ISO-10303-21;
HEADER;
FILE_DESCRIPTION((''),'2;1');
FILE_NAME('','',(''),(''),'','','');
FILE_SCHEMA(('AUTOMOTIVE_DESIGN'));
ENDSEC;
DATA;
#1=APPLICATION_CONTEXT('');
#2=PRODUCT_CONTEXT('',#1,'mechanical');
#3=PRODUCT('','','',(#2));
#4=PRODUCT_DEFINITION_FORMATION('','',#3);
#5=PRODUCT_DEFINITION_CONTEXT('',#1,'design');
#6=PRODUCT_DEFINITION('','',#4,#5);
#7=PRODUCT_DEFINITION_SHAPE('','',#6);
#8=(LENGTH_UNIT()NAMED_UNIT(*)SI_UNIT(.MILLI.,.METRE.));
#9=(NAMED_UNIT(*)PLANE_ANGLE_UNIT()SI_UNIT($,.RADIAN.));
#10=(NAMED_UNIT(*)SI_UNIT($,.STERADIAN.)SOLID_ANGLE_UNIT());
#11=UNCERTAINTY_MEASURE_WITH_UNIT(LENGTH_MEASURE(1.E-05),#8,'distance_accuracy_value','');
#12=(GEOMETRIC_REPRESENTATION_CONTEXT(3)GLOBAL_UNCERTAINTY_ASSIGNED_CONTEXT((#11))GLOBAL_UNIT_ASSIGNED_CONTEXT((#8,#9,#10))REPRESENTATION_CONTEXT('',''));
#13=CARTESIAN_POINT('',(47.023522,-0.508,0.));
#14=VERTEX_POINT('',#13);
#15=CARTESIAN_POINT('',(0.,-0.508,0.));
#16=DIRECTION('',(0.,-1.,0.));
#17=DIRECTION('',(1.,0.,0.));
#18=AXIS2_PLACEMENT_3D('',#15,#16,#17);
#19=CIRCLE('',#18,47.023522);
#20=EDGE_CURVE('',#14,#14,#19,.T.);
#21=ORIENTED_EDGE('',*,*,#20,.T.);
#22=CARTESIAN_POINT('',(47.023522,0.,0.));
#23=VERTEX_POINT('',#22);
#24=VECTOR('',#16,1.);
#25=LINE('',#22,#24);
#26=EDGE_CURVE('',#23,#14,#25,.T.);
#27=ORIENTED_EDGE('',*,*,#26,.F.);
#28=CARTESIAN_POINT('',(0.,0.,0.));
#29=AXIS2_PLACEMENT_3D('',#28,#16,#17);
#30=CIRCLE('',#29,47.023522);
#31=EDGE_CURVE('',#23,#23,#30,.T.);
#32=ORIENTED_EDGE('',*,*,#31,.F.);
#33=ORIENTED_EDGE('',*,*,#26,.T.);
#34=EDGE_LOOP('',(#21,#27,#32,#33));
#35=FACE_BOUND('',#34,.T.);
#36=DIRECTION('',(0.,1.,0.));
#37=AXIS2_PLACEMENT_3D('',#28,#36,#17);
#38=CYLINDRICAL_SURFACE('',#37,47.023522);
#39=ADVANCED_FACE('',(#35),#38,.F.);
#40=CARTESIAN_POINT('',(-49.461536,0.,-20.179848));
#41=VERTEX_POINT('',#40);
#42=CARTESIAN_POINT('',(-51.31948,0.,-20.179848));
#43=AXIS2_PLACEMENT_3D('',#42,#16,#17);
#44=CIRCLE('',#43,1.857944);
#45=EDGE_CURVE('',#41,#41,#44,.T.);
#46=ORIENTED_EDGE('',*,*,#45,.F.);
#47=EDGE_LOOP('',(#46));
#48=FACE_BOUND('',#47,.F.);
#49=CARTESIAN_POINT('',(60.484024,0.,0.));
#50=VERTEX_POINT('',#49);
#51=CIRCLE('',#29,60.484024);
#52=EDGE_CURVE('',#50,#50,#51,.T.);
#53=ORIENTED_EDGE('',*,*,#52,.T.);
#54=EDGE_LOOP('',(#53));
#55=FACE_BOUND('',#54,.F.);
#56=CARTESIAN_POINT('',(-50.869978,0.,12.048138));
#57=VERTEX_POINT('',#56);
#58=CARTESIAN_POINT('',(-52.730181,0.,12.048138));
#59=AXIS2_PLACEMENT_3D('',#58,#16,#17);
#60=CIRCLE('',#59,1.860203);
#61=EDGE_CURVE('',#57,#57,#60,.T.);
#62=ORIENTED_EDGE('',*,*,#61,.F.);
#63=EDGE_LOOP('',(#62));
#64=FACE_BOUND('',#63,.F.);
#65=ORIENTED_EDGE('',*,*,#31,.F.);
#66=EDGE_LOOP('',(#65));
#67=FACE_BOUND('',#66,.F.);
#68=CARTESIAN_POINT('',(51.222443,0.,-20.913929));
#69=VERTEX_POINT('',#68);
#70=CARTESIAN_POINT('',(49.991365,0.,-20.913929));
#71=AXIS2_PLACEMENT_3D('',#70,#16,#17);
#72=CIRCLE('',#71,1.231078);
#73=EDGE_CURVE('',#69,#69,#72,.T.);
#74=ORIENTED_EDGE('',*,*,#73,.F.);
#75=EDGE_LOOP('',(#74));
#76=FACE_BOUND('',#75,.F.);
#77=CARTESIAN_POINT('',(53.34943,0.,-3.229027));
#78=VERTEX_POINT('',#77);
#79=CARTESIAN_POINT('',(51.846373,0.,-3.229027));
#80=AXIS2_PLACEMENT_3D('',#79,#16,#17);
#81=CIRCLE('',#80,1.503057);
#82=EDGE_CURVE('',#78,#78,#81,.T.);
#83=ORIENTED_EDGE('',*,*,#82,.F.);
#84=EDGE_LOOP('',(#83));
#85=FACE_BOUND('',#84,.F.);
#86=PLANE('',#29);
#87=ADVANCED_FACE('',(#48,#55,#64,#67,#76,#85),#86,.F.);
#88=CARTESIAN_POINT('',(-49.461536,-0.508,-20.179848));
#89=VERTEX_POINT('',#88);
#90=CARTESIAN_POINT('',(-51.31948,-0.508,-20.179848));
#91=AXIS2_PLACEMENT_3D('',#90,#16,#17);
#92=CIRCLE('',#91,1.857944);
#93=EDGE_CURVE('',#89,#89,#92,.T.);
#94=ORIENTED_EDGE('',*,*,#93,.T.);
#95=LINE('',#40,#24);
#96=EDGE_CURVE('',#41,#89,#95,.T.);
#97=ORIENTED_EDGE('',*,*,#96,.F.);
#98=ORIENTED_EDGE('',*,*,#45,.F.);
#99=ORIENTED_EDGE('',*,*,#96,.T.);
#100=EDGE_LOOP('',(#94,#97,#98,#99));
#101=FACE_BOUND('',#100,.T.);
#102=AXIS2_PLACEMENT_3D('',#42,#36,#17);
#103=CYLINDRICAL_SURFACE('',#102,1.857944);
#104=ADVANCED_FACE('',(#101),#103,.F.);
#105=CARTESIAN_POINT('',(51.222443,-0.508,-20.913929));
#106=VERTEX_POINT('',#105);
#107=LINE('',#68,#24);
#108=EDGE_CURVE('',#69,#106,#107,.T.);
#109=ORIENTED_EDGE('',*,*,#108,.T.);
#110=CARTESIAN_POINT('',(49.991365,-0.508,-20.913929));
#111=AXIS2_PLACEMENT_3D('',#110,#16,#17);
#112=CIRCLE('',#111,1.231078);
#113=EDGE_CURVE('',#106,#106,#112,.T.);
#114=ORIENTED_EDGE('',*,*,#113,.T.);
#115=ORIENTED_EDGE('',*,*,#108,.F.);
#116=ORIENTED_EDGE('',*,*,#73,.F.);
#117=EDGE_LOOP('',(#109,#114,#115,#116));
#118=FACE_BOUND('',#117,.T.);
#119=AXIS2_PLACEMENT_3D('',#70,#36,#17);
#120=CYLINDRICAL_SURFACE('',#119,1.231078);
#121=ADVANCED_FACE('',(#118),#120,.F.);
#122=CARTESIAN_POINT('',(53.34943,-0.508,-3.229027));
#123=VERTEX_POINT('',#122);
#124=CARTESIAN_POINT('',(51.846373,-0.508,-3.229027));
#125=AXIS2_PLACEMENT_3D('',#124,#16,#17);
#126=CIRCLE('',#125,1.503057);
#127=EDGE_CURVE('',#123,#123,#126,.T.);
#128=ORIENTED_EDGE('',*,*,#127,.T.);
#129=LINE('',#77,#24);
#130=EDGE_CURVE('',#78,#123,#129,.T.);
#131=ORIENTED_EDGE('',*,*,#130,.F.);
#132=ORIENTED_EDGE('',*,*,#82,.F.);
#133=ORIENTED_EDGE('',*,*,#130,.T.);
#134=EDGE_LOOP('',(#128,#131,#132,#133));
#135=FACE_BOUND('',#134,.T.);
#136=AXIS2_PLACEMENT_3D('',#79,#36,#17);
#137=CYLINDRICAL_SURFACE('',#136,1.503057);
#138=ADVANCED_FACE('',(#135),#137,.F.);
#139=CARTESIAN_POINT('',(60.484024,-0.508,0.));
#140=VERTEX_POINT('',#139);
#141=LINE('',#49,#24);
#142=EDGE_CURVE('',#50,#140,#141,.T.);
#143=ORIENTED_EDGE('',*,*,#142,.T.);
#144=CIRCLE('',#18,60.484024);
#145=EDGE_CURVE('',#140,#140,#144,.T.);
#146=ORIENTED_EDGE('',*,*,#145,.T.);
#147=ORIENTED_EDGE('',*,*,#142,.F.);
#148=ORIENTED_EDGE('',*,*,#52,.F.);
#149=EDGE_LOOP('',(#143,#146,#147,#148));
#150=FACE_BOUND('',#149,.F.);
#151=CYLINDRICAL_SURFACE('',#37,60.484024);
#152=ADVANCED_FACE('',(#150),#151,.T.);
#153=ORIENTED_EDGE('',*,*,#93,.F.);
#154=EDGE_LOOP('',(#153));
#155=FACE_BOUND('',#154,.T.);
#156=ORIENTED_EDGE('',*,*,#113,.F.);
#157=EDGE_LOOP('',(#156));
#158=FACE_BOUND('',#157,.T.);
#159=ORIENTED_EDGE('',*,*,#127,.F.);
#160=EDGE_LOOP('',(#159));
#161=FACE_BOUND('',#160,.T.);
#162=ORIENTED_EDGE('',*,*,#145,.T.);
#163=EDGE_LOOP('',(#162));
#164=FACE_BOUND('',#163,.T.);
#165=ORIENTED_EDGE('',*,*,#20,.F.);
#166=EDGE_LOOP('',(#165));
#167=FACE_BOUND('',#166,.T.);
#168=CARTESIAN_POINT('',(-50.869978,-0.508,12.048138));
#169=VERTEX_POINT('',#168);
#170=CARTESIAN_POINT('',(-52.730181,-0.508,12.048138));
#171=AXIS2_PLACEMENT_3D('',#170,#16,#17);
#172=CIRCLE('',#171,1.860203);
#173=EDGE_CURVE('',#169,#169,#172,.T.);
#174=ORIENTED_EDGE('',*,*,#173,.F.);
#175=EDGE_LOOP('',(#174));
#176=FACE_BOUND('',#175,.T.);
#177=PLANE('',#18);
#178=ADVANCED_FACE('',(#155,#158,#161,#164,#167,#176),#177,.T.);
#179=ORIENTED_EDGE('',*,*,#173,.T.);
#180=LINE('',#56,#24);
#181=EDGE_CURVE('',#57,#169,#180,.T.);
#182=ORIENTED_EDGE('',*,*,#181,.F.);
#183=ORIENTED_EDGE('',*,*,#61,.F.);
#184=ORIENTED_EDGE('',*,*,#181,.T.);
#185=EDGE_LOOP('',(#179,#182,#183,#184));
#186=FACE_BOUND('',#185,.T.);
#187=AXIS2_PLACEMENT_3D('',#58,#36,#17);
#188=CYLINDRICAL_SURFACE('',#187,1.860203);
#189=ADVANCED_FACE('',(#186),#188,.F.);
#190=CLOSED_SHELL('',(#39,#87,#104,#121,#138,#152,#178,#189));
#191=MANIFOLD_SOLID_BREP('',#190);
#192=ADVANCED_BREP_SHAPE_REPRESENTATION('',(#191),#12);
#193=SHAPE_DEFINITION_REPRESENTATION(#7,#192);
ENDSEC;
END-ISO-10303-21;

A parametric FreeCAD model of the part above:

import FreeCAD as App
import Part
import Sketcher

V = App.Vector
Q = App.Units.Quantity

doc = App.newDocument("Part")
body = doc.addObject("PartDesign::Body", "Body")

sketch1 = doc.addObject("Sketcher::SketchObject", "Sketch")
body.addObject(sketch1)
sketch1.AttachmentSupport = (doc.XZ_Plane, [""])
sketch1.MapMode = "FlatFace"
sketch1.addGeometry(Part.Circle(V(0, 0, 0), V(0, 0, 1), 60.5), False)
sketch1.addGeometry(Part.Circle(V(-51.3, -20.2, 0), V(0, 0, 1), 1.9), False)
sketch1.addGeometry(Part.Circle(V(50, -20.9, 0), V(0, 0, 1), 1.2), False)
sketch1.addGeometry(Part.Circle(V(51.8, -3.2, 0), V(0, 0, 1), 1.5), False)
sketch1.addGeometry(Part.Circle(V(-52.7, 12, 0), V(0, 0, 1), 1.9), False)
sketch1.addGeometry(Part.Circle(V(0, 0, 0), V(0, 0, 1), 47), False)
sketch1.addConstraint(Sketcher.Constraint("Coincident", 0, 3, -1, 1))
sketch1.addConstraint(Sketcher.Constraint("Coincident", 5, 3, -1, 1))
sketch1.addConstraint(Sketcher.Constraint("Diameter", 1, 3.715888))
sketch1.addConstraint(Sketcher.Constraint("Diameter", 0, 120.968048))
sketch1.addConstraint(Sketcher.Constraint("Diameter", 2, 2.462156))
sketch1.addConstraint(Sketcher.Constraint("Diameter", 3, 3.006114))
sketch1.addConstraint(Sketcher.Constraint("Diameter", 4, 3.720406))
sketch1.addConstraint(Sketcher.Constraint("Diameter", 5, 94.047044))
sketch1.addConstraint(Sketcher.Constraint("DistanceX", 4, 3, 1, 3, 1.410701))
sketch1.addConstraint(Sketcher.Constraint("DistanceX", 1, 3, -1, 1, 51.31948))
sketch1.addConstraint(Sketcher.Constraint("DistanceY", 1, 3, -1, 1, 20.179848))
sketch1.addConstraint(Sketcher.Constraint("DistanceY", 2, 3, -1, 1, 20.913929))
sketch1.addConstraint(Sketcher.Constraint("DistanceY", 1, 3, 3, 3, 16.950821))
sketch1.addConstraint(Sketcher.Constraint("DistanceX", -1, 1, 2, 3, 49.991365))
sketch1.addConstraint(Sketcher.Constraint("DistanceX", -1, 1, 3, 3, 51.846373))
sketch1.addConstraint(Sketcher.Constraint("DistanceY", -1, 1, 4, 3, 12.048138))
pad1 = doc.addObject("PartDesign::Pad", "Pad")
body.addObject(pad1)
pad1.Profile = sketch1
pad1.Length = Q("0.02 in")

doc.recompute()
